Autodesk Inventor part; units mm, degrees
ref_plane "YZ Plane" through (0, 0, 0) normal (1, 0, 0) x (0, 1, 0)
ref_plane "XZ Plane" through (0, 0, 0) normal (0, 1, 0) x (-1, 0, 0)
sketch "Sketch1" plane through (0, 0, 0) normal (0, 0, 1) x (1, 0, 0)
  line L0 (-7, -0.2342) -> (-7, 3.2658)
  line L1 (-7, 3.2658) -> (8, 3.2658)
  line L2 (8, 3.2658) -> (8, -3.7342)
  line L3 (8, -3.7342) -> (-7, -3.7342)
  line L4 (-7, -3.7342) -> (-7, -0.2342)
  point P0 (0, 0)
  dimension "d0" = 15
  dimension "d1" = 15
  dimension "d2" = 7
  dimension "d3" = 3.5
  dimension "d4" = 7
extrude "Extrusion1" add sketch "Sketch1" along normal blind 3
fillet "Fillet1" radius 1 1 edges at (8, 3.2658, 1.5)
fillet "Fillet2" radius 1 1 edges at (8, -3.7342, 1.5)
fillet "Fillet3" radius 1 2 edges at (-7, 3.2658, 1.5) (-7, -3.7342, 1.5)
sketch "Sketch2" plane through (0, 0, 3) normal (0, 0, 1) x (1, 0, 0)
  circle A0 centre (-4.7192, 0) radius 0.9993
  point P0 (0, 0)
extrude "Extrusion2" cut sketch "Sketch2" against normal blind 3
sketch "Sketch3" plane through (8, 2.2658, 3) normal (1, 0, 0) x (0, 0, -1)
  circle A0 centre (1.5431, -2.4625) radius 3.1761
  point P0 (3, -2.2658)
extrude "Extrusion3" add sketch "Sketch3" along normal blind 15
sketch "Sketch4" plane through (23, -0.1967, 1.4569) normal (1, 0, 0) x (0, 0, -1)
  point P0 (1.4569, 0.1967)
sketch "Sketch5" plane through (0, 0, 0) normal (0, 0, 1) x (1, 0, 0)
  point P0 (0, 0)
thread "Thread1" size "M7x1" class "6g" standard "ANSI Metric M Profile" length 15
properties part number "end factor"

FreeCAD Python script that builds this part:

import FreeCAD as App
import Part
import Sketcher
from FreeCAD import Vector


def edges_at(feature, points):
    """Names of the edges that pass closest to the given points."""
    edges = feature.Shape.Edges
    near = lambda p: min(range(len(edges)), key=lambda i: edges[i].distToShape(Part.Vertex(*p))[0])
    return sorted({f"Edge{near(p) + 1}" for p in points})


def add_polygon(sketch, points):
    """Adds a closed chain of lines whose ends are joined by coincident constraints."""
    first, n = sketch.GeometryCount, len(points)
    for a, b in zip(points, points[1:] + points[:1]):
        sketch.addGeometry(Part.LineSegment(App.Vector(*a, 0), App.Vector(*b, 0)), False)
    for i in range(n):
        sketch.addConstraint(Sketcher.Constraint("Coincident", first + i, 2, first + (i + 1) % n, 1))

doc = App.newDocument("Part")
body = doc.addObject("PartDesign::Body", "Body")

sketch1 = body.newObject("Sketcher::SketchObject", "Sketch")
sketch1.AttachmentSupport = (doc.getObject("XY_Plane"), [""])
sketch1.MapMode = "FlatFace"
add_polygon(sketch1, [(-7, 3), (-7, -4), (8, -4), (8, 3)])
sketch1.addConstraint([
    Sketcher.Constraint("Vertical", 0),
    Sketcher.Constraint("Horizontal", 1),
    Sketcher.Constraint("Vertical", 2),
    Sketcher.Constraint("Horizontal", 3),
    Sketcher.Constraint("DistanceX", 1, 1, 1, 2, 15.0),
    Sketcher.Constraint("DistanceY", 0, 2, 0, 1, 7.0),
    Sketcher.Constraint("DistanceX", 0, 2, -1, 1, 7.0),
    Sketcher.Constraint("DistanceY", 0, 2, -1, 1, 3.7342),
])
pad1 = body.newObject("PartDesign::Pad", "Pad")
pad1.Profile = sketch1
pad1.Length = 3
doc.recompute()

fillet = body.newObject("PartDesign::Fillet", "Fillet")
fillet.Base = (pad1, edges_at(pad1, [(8, 3.266, 1.5)]))
fillet.Radius = 1
doc.recompute()

fillet2 = body.newObject("PartDesign::Fillet", "Fillet001")
fillet2.Base = (fillet, edges_at(fillet, [(8, -3.734, 1.5)]))
fillet2.Radius = 1
doc.recompute()

fillet3 = body.newObject("PartDesign::Fillet", "Fillet002")
fillet3.Base = (fillet2, edges_at(fillet2, [(-7, 3.266, 1.5), (-7, -3.734, 1.5)]))
fillet3.Radius = 1

sketch2 = body.newObject("Sketcher::SketchObject", "Sketch001")
sketch2.AttachmentSupport = (doc.getObject("XY_Plane"), [""])
sketch2.MapMode = "FlatFace"
sketch2.AttachmentOffset = App.Placement(Vector(0, 0, 3), App.Rotation())
sketch2.addGeometry(Part.Circle(Vector(-4.7, 0, 0), Vector(0, 0, 1), 1), False)
sketch2.addConstraint([
    Sketcher.Constraint("PointOnObject", 0, 3, -1),
    Sketcher.Constraint("Diameter", 0, 1.9986),
    Sketcher.Constraint("DistanceX", 0, 3, -1, 1, 4.7192),
])
pocket1 = body.newObject("PartDesign::Pocket", "Pocket")
pocket1.Profile = sketch2
pocket1.Length = 3

sketch3 = body.newObject("Sketcher::SketchObject", "Sketch002")
sketch3.AttachmentSupport = (doc.getObject("YZ_Plane"), [""])
sketch3.MapMode = "FlatFace"
sketch3.AttachmentOffset = App.Placement(Vector(0, 0, 8), App.Rotation())
sketch3.addGeometry(Part.Circle(Vector(-0.2, 1.5, 0), Vector(0, 0, 1), 3.2), False)
sketch3.addConstraint([
    Sketcher.Constraint("Diameter", 0, 6.3522),
    Sketcher.Constraint("DistanceY", -1, 1, 0, 3, 1.457),
    Sketcher.Constraint("DistanceX", 0, 3, -1, 1, 0.1967),
])
pad2 = body.newObject("PartDesign::Pad", "Pad001")
pad2.Profile = sketch3
pad2.Length = 15

doc.recompute()
